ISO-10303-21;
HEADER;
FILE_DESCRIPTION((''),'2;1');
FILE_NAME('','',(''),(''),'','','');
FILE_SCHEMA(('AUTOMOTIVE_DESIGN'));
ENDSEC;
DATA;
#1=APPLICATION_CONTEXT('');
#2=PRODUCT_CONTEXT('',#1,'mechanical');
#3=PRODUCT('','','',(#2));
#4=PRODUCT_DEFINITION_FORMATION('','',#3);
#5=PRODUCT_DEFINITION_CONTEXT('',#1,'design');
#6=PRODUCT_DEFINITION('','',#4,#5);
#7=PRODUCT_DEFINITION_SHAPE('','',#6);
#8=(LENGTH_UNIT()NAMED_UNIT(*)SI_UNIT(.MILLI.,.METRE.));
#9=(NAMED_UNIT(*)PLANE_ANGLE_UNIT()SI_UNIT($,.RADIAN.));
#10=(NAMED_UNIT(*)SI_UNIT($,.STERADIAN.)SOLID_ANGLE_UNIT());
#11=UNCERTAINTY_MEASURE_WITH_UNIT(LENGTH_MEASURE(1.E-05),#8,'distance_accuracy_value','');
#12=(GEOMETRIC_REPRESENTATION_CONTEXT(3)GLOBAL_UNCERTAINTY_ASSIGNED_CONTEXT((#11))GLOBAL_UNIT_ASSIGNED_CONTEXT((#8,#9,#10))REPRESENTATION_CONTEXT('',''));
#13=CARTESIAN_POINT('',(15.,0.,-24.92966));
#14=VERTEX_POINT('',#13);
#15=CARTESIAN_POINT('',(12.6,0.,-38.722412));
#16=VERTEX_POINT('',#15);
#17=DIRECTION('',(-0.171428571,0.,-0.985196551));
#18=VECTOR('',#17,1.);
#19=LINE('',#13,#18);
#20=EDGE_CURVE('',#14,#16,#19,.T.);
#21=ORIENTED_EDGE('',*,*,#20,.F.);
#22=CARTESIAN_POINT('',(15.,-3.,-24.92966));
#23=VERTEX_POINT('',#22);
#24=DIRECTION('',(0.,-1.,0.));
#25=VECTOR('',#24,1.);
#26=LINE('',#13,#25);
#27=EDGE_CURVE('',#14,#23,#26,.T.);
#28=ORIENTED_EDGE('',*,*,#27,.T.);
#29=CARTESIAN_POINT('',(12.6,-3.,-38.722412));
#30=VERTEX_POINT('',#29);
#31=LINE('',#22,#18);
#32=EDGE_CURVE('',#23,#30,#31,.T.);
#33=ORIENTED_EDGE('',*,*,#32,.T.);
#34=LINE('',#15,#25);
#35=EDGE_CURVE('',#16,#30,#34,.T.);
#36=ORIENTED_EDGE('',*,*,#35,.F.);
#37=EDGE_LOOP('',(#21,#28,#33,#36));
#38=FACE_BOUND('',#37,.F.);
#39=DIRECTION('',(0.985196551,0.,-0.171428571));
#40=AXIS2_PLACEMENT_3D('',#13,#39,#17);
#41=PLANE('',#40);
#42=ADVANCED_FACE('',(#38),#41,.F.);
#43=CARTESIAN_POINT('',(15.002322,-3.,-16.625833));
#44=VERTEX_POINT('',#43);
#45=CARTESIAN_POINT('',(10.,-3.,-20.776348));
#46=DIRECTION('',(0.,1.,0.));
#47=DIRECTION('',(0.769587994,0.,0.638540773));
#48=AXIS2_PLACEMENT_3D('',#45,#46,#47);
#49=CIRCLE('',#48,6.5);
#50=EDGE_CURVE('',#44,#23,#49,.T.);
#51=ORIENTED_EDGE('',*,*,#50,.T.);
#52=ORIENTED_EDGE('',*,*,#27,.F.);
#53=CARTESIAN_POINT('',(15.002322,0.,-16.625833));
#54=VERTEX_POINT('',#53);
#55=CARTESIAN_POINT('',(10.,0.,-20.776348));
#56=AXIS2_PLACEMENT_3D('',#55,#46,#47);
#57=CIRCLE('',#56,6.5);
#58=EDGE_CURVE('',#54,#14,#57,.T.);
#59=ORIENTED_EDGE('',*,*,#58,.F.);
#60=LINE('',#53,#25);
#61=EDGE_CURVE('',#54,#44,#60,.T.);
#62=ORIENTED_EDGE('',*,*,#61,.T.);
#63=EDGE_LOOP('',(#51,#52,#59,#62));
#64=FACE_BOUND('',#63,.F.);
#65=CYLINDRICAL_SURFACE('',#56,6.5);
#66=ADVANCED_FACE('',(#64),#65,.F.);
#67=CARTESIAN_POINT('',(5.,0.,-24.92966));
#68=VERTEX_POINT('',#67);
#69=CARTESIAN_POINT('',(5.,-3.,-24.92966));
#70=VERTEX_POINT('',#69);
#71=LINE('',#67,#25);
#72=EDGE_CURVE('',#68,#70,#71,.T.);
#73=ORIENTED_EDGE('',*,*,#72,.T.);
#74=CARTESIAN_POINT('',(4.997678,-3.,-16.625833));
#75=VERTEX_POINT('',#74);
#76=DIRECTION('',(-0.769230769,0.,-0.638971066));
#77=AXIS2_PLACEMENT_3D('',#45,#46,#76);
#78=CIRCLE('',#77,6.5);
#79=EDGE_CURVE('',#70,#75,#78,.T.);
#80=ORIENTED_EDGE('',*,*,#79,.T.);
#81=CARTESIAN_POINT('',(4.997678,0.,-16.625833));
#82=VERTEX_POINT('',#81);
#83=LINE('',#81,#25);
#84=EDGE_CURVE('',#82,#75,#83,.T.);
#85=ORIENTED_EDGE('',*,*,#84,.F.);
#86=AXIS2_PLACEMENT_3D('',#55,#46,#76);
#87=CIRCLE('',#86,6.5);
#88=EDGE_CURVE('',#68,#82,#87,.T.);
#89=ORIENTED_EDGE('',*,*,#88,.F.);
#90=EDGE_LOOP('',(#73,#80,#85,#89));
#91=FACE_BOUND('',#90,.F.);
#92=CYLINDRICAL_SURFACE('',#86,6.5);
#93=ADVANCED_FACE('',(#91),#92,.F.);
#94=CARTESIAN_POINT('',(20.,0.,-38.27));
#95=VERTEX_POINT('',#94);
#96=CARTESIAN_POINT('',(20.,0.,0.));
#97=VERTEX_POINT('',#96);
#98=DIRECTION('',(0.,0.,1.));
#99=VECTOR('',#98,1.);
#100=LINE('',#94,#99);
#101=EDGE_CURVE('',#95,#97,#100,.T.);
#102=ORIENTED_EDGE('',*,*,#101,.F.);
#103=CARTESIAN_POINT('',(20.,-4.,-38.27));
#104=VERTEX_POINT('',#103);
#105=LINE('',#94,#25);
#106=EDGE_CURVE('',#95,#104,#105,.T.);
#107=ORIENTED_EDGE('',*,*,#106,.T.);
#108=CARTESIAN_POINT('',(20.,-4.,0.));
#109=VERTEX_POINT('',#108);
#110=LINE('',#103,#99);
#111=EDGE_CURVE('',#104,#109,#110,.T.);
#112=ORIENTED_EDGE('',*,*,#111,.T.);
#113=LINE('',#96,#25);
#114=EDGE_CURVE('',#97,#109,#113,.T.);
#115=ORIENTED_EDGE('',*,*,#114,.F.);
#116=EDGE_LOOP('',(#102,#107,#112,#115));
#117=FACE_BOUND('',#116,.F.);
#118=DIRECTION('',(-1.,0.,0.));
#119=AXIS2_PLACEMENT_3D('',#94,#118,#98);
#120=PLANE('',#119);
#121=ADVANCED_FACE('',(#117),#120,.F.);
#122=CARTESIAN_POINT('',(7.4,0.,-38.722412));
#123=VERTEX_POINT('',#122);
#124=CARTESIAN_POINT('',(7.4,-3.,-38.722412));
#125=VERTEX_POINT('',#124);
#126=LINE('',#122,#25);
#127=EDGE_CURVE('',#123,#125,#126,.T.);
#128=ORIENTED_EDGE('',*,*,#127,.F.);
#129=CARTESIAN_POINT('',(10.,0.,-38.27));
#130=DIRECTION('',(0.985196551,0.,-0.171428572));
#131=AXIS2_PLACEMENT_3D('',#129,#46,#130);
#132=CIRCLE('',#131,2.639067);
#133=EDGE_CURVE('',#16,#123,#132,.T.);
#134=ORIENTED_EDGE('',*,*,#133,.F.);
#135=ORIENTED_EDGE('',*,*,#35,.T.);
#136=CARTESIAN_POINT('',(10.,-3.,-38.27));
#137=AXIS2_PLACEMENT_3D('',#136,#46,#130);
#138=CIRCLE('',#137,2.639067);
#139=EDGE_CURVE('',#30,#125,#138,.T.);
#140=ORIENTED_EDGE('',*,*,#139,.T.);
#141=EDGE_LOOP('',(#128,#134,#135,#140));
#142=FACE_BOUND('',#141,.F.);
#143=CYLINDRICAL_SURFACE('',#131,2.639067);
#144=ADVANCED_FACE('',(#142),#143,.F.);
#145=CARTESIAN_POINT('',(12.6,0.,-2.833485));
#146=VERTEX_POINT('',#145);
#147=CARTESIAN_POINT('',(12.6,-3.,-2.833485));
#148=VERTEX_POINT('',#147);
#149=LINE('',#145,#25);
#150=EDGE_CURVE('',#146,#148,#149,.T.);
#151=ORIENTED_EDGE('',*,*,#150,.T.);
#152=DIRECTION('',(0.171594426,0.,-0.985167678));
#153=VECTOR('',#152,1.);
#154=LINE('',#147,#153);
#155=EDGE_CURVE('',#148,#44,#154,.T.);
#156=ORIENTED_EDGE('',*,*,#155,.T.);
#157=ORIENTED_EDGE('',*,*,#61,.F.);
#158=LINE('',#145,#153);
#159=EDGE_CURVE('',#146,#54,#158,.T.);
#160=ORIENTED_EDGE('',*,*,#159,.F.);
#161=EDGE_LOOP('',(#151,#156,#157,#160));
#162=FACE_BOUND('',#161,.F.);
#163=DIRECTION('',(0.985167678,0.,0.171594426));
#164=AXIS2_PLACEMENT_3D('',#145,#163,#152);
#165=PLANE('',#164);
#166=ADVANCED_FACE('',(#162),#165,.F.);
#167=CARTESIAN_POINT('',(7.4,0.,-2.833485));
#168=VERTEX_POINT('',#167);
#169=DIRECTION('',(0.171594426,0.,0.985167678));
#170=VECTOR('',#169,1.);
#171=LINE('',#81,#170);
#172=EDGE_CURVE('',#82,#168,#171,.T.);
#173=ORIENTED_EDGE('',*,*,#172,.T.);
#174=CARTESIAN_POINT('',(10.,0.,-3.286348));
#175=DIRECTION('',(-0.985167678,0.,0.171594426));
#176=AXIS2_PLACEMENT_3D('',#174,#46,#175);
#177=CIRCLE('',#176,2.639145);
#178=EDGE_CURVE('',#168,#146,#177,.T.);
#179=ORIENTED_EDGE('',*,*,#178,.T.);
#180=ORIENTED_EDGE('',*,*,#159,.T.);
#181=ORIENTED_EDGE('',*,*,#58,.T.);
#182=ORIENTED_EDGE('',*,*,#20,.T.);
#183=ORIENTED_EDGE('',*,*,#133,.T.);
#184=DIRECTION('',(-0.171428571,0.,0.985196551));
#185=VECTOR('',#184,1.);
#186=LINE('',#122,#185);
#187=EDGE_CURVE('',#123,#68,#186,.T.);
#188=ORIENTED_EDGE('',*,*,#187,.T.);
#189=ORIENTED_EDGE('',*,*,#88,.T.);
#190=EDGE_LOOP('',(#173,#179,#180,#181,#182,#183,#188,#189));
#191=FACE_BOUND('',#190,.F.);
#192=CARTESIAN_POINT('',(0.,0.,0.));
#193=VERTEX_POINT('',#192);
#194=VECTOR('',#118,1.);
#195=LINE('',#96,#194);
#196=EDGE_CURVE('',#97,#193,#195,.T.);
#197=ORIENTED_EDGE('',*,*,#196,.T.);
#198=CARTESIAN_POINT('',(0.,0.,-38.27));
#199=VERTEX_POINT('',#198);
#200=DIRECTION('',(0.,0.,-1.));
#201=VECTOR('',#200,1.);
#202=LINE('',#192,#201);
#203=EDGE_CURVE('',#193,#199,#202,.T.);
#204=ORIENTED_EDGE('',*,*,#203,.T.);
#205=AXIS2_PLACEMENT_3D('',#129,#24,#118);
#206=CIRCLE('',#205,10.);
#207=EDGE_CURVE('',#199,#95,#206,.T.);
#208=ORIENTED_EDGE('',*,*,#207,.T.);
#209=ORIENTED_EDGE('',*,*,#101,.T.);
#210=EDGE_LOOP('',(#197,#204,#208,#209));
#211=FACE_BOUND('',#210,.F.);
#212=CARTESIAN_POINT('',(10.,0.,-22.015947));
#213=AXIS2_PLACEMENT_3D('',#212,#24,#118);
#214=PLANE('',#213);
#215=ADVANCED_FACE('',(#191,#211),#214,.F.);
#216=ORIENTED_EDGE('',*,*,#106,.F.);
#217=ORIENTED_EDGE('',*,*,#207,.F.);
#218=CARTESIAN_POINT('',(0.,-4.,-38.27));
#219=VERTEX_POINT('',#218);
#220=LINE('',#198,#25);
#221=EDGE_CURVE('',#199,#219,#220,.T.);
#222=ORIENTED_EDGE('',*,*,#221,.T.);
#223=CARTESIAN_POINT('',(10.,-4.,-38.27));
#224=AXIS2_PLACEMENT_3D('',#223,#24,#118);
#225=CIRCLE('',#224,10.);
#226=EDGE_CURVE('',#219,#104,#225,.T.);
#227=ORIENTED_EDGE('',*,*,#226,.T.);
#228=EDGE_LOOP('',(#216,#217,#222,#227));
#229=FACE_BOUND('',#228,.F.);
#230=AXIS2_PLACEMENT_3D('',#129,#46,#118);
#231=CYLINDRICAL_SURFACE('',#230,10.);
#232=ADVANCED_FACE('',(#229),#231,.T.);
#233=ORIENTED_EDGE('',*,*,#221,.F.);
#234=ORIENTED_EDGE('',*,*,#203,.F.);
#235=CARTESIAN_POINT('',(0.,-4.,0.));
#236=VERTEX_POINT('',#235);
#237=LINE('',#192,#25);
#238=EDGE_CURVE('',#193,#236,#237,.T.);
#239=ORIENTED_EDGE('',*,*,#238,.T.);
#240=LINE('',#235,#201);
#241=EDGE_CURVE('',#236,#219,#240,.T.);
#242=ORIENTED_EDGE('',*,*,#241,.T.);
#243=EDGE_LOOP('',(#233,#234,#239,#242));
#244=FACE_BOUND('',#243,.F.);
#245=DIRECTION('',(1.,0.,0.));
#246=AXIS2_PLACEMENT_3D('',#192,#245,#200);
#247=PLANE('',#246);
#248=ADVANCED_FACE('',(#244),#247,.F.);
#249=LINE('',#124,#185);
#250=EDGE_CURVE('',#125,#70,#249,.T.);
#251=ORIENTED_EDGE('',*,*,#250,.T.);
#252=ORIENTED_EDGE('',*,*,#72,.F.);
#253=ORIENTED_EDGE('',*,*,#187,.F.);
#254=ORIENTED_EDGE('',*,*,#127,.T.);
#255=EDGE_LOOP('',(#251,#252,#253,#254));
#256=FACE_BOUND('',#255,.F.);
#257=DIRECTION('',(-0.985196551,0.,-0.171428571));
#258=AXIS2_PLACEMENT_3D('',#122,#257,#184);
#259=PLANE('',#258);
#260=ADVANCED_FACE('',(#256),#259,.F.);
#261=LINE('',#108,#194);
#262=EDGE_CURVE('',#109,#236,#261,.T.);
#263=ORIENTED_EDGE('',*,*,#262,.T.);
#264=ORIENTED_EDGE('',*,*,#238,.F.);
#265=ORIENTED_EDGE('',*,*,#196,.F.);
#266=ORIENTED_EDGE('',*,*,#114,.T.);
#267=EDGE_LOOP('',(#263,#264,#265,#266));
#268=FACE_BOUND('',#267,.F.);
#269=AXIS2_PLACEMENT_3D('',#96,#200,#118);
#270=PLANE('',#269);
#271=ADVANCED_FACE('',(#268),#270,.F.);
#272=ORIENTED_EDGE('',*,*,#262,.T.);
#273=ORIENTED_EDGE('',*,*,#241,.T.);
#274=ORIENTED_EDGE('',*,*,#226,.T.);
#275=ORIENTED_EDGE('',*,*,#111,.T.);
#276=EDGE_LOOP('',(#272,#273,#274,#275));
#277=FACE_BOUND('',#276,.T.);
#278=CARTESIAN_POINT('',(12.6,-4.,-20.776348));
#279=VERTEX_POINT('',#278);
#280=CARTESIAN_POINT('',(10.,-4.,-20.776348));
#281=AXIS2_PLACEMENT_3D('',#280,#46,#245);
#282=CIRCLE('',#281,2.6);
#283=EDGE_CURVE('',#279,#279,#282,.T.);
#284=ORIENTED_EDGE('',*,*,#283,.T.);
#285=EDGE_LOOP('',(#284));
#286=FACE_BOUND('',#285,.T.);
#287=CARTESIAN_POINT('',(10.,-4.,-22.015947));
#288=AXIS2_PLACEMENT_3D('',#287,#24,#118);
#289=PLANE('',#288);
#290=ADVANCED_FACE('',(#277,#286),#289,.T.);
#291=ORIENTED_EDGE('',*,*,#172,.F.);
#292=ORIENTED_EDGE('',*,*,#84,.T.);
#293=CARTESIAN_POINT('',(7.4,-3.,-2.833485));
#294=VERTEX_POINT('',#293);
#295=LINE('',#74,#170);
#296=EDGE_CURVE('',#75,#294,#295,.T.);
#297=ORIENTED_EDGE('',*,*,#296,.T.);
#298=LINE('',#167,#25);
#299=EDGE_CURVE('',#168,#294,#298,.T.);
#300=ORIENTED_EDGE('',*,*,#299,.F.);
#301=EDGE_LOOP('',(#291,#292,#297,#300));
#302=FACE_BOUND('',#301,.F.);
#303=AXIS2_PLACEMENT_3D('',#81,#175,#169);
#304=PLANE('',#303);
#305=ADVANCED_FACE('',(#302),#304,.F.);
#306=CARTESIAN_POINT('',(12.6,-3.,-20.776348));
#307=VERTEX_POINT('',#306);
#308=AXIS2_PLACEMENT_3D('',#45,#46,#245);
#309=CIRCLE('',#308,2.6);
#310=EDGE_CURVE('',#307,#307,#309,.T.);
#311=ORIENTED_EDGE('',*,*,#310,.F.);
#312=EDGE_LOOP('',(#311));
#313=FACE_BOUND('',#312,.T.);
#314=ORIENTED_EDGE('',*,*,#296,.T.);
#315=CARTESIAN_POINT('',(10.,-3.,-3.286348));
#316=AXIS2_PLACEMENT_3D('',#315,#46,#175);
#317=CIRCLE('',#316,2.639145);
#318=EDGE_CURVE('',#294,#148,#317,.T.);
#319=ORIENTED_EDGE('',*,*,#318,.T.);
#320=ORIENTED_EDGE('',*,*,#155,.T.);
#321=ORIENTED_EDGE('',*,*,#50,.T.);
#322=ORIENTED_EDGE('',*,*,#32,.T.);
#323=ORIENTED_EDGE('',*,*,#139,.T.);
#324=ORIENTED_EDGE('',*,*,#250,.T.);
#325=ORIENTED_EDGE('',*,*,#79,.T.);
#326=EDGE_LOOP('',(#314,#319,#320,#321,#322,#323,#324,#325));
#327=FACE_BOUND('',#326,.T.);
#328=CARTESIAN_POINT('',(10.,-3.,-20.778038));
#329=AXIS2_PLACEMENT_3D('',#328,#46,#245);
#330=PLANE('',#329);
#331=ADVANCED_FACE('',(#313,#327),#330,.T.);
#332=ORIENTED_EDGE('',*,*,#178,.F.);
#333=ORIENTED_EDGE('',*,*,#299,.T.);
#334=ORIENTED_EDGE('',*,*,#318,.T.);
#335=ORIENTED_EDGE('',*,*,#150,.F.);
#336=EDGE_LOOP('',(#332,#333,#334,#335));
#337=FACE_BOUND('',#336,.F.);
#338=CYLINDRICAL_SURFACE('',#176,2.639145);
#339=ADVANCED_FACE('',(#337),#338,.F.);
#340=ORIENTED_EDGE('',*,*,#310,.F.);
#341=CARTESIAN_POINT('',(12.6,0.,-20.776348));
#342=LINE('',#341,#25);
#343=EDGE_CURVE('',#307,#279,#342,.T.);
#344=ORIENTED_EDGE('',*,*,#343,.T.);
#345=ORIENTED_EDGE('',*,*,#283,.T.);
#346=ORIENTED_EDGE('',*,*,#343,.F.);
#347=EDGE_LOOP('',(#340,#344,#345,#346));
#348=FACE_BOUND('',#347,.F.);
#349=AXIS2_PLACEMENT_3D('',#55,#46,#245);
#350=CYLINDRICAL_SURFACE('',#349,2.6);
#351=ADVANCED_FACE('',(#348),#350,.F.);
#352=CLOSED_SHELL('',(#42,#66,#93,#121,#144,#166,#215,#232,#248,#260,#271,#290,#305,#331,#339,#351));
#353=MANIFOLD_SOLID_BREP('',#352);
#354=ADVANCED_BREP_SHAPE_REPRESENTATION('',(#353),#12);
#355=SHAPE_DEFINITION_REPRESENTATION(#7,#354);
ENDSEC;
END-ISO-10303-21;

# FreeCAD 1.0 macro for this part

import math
import FreeCAD as App
import Part
import Sketcher
Q = App.Units.Quantity

doc = App.newDocument("Part")
body = doc.addObject("PartDesign::Body", "Body")

# Sketch on XZ plane
sketch1 = body.newObject("Sketcher::SketchObject", "Sketch")
sketch1.AttachmentSupport = (doc.getObject("XZ_Plane"), [""])
sketch1.MapMode = "FlatFace"
sketch1.addGeometry([
    Part.LineSegment(App.Vector(0, -38.27, 0), App.Vector(0, 0, 0)),
    Part.LineSegment(App.Vector(0, 0, 0), App.Vector(20, 0, 0)),
    Part.LineSegment(App.Vector(20, 0, 0), App.Vector(20, -38.27, 0)),
    Part.ArcOfCircle(Part.Circle(App.Vector(10, -38.27, 0), App.Vector(0, 0, 1), 10), math.radians(180), math.radians(360)),
], False)
sketch1.addConstraint([
    Sketcher.Constraint("Coincident", 0, 2, 1, 1),
    Sketcher.Constraint("Coincident", 1, 2, 2, 1),
    Sketcher.Constraint("Tangent", 2, 2, 3, 2),
    Sketcher.Constraint("Tangent", 3, 1, 0, 1),
    Sketcher.Constraint("Vertical", 0),
    Sketcher.Constraint("Horizontal", 1),
    Sketcher.Constraint("Vertical", 2),
    Sketcher.Constraint("Coincident", 0, 2, -1, 1),
    Sketcher.Constraint("Radius", 3, Q("10 mm")),
    Sketcher.Constraint("DistanceY", 0, 1, 0, 2, Q("38.27 mm")),
])
pad1 = body.newObject("PartDesign::Pad", "Pad")
pad1.Profile = sketch1
pad1.Length = 4

# Sketch on XZ plane
sketch2 = body.newObject("Sketcher::SketchObject", "Sketch001")
sketch2.AttachmentSupport = (doc.getObject("XZ_Plane"), [""])
sketch2.MapMode = "FlatFace"
sketch2.addGeometry([
    Part.LineSegment(App.Vector(7.4, -38.722412, 0), App.Vector(5, -24.92966, 0)),  # 0
    Part.ArcOfCircle(Part.Circle(App.Vector(10, -20.776348, 0), App.Vector(0, 0, 1), 6.5), math.radians(140.316906), math.radians(219.715137)),  # 1
    Part.LineSegment(App.Vector(4.997678, -16.625833, 0), App.Vector(7.4, -2.833485, 0)),  # 2
    Part.ArcOfCircle(Part.Circle(App.Vector(10, -3.286348, 0), App.Vector(0, 0, 1), 2.639145), math.radians(9.880535), math.radians(170.119465)),  # 3
    Part.LineSegment(App.Vector(12.6, -2.833485, 0), App.Vector(15.002322, -16.625833, 0)),  # 4
    Part.ArcOfCircle(Part.Circle(App.Vector(10, -20.776348, 0), App.Vector(0, 0, 1), 6.5), math.radians(-39.715137), math.radians(39.683094)),  # 5
    Part.LineSegment(App.Vector(15, -24.92966, 0), App.Vector(12.6, -38.722412, 0)),  # 6
    Part.ArcOfCircle(Part.Circle(App.Vector(10, -38.27, 0), App.Vector(0, 0, 1), 2.639067), math.radians(-170.12911), math.radians(-9.87089)),  # 7
], False)
sketch2.addConstraint([
    Sketcher.Constraint("Coincident", 0, 2, 1, 2),
    Sketcher.Constraint("Coincident", 1, 1, 2, 1),
    Sketcher.Constraint("Tangent", 2, 2, 3, 2),
    Sketcher.Constraint("Tangent", 3, 1, 4, 1),
    Sketcher.Constraint("Coincident", 4, 2, 5, 2),
    Sketcher.Constraint("Coincident", 5, 1, 6, 1),
    Sketcher.Constraint("Tangent", 6, 2, 7, 2),
    Sketcher.Constraint("Tangent", 7, 1, 0, 1),
    Sketcher.Constraint("Coincident", 5, 3, 1, 3),
    Sketcher.Constraint("Equal", 1, 5),
    Sketcher.Constraint("Horizontal", 2, 2, 3, 1),
    Sketcher.Constraint("Horizontal", 1, 1, 4, 2),
    Sketcher.Constraint("Horizontal", 0, 2, 5, 1),
    Sketcher.Constraint("Horizontal", 6, 2, 7, 1),
    Sketcher.Constraint("Vertical", 3, 1, 6, 2),
    Sketcher.Constraint("Equal", 0, 2),
    Sketcher.Constraint("Radius", 1, Q("6.5 mm")),
    Sketcher.Constraint("Distance", 0, Q("14 mm")),
    Sketcher.Constraint("DistanceX", -1, 1, 1, 3, Q("10 mm")),
    Sketcher.Constraint("DistanceX", -1, 1, 0, 2, Q("5 mm")),
    Sketcher.Constraint("DistanceX", -1, 1, 2, 2, Q("7.4 mm")),
    Sketcher.Constraint("DistanceY", 7, 3, -1, 1, Q("38.27 mm")),
    Sketcher.Constraint("DistanceY", 1, 3, 3, 3, Q("17.49 mm")),
])
pocket1 = body.newObject("PartDesign::Pocket", "Pocket")
pocket1.Profile = sketch2
pocket1.Length = 3
pocket1.Reversed = True

# Sketch on XZ plane
sketch3 = body.newObject("Sketcher::SketchObject", "Sketch002")
sketch3.AttachmentSupport = (doc.getObject("XZ_Plane"), [""])
sketch3.MapMode = "FlatFace"
sketch3.addGeometry(Part.Circle(App.Vector(10, -20.776348, 0), App.Vector(0, 0, 1), 2.6), False)
sketch3.addConstraint([
    Sketcher.Constraint("Diameter", 0, Q("5.2 mm")),
    Sketcher.Constraint("DistanceX", -1, 1, 0, 3, Q("10 mm")),
    Sketcher.Constraint("DistanceY", 0, 3, -1, 1, Q("20.776348 mm")),
])
pocket2 = body.newObject("PartDesign::Pocket", "Pocket001")
pocket2.Profile = sketch3
pocket2.Length = 4
pocket2.Reversed = True

doc.recompute()
